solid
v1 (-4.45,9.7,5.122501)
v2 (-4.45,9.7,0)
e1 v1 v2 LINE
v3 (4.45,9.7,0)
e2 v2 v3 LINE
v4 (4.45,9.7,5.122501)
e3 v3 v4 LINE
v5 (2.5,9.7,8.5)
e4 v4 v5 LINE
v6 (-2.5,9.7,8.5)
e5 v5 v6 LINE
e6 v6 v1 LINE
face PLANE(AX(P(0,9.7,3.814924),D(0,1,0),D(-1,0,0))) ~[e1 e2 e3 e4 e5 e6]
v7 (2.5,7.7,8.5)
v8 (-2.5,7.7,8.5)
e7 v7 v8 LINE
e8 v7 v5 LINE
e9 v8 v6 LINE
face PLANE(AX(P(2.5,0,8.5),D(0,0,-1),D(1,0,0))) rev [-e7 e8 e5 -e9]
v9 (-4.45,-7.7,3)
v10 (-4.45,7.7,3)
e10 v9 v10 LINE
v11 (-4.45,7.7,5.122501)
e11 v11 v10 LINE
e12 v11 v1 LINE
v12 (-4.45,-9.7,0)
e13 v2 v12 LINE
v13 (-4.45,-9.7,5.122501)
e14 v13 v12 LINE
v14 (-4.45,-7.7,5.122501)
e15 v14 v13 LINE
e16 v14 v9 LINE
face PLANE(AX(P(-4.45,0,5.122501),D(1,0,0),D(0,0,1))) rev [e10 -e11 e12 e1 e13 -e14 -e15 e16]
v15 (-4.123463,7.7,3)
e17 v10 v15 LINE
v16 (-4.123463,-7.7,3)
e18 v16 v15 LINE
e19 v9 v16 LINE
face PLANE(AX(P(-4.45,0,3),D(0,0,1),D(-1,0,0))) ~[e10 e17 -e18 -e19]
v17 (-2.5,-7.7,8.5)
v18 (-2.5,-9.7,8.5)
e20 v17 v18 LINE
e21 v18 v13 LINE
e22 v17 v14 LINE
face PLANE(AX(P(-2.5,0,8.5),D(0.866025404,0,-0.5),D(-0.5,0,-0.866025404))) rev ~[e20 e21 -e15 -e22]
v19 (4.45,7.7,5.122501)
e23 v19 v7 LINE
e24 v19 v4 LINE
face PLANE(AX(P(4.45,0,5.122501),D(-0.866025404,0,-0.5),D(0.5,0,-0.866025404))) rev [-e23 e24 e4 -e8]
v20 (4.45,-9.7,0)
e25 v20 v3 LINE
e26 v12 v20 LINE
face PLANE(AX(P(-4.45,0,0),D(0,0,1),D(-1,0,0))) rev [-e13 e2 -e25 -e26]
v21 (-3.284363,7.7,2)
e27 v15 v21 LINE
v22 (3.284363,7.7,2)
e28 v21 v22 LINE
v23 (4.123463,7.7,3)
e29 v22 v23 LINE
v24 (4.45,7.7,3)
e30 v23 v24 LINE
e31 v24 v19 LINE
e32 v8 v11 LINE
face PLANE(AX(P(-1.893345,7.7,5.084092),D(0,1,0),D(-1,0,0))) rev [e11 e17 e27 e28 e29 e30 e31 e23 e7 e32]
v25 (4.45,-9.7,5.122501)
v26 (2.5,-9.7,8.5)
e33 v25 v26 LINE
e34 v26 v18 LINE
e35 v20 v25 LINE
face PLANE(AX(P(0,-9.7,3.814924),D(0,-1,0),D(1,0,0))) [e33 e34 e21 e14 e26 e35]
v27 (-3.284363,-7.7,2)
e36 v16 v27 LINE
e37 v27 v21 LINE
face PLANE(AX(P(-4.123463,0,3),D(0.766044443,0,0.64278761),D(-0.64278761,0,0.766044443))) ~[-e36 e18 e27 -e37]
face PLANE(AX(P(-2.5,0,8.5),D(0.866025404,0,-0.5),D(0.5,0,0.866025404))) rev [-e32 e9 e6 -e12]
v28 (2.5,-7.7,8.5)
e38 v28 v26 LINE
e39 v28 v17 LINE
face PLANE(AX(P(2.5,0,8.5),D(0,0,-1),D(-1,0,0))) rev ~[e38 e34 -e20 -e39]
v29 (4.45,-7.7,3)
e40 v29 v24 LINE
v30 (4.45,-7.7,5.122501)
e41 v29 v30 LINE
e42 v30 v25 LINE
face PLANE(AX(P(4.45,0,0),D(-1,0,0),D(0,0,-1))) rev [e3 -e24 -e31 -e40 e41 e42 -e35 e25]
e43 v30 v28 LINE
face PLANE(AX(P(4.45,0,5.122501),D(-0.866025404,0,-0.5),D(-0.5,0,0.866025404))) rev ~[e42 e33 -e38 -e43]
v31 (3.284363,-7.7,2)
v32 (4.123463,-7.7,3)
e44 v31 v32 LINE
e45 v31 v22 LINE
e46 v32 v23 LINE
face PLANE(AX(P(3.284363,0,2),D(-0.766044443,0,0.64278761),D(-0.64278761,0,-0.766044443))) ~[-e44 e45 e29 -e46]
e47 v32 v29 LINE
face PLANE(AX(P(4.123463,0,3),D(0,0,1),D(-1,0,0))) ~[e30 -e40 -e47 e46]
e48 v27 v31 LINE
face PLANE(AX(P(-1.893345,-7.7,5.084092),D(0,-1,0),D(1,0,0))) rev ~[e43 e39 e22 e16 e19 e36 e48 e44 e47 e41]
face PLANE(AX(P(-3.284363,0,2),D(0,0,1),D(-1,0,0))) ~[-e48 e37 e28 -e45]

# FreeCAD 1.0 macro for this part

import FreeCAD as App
import Part
import Sketcher
Q = App.Units.Quantity

doc = App.newDocument("Part")
params = doc.addObject("Spreadsheet::Sheet", "Params")
for row, (alias, value) in enumerate([
    ("sketch1_width", "5 mm"),
    ("sketch1_width2", "8.9 mm"),
    ("pad1_length", "9.7 mm"),
    ("sketch2_width", "5 mm"),
    ("sketch2_length", "3.9 mm"),
    ("pocket1_length", "7.7 mm"),
], start=1):
    params.set(f"A{row}", alias)
    params.set(f"B{row}", "=" + value)
    params.setAlias(f"B{row}", alias)

body = doc.addObject("PartDesign::Body", "Body")

# Sketch on XZ plane
sketch1 = body.newObject("Sketcher::SketchObject", "Sketch")
sketch1.AttachmentSupport = (doc.getObject("XZ_Plane"), [""])
sketch1.MapMode = "FlatFace"
sketch1.addGeometry([
    Part.LineSegment(App.Vector(2.5, 8.5, 0), App.Vector(-2.5, 8.5, 0)),  # 0
    Part.LineSegment(App.Vector(-2.5, 8.5, 0), App.Vector(-4.5, 5.1, 0)),  # 1
    Part.LineSegment(App.Vector(-4.5, 5.1, 0), App.Vector(-4.5, 0, 0)),  # 2
    Part.LineSegment(App.Vector(-4.5, 0, 0), App.Vector(4.5, 0, 0)),  # 3
    Part.LineSegment(App.Vector(4.5, 0, 0), App.Vector(4.5, 5.1, 0)),  # 4
    Part.LineSegment(App.Vector(4.5, 5.1, 0), App.Vector(2.5, 8.5, 0)),  # 5
], False)
sketch1.addConstraint([
    Sketcher.Constraint("Coincident", 0, 2, 1, 1),
    Sketcher.Constraint("Coincident", 1, 2, 2, 1),
    Sketcher.Constraint("Coincident", 2, 2, 3, 1),
    Sketcher.Constraint("Coincident", 3, 2, 4, 1),
    Sketcher.Constraint("Coincident", 4, 2, 5, 1),
    Sketcher.Constraint("Coincident", 5, 2, 0, 1),
    Sketcher.Constraint("Horizontal", 0),
    Sketcher.Constraint("Vertical", 2),
    Sketcher.Constraint("Horizontal", 3),
    Sketcher.Constraint("Vertical", 4),
    Sketcher.Constraint("Symmetric", 2, 2, 3, 2, -1, 1),
    Sketcher.Constraint("Horizontal", 1, 2, 4, 2),
    Sketcher.Constraint("Equal", 1, 5),
    Sketcher.Constraint("DistanceX", 0, 2, 0, 1, Q("5 mm")),
    Sketcher.Constraint("Angle", 1, Q("-120 deg")),
    Sketcher.Constraint("DistanceX", 3, 1, 3, 2, Q("8.9 mm")),
    Sketcher.Constraint("DistanceY", -1, 1, 0, 2, Q("8.5 mm")),
])
sketch1.setExpression("Constraints[13]", "Params.sketch1_width")
sketch1.setExpression("Constraints[15]", "Params.sketch1_width2")
pad1 = body.newObject("PartDesign::Pad", "Pad")
pad1.Profile = sketch1
pad1.setExpression("Length", "Params.pad1_length")

# Sketch on XZ plane
sketch2 = body.newObject("Sketcher::SketchObject", "Sketch001")
sketch2.AttachmentSupport = (doc.getObject("XZ_Plane"), [""])
sketch2.MapMode = "FlatFace"
sketch2.addGeometry([
    Part.LineSegment(App.Vector(-4.45, 5.12, 0), App.Vector(-4.45, 3, 0)),  # 0
    Part.LineSegment(App.Vector(-4.45, 3, 0), App.Vector(-4.12, 3, 0)),  # 1
    Part.LineSegment(App.Vector(-4.12, 3, 0), App.Vector(-3.28, 2, 0)),  # 2
    Part.LineSegment(App.Vector(-3.28, 2, 0), App.Vector(3.28, 2, 0)),  # 3
    Part.LineSegment(App.Vector(3.28, 2, 0), App.Vector(4.12, 3, 0)),  # 4
    Part.LineSegment(App.Vector(4.12, 3, 0), App.Vector(4.45, 3, 0)),  # 5
    Part.LineSegment(App.Vector(4.45, 3, 0), App.Vector(4.45, 5.12, 0)),  # 6
    Part.LineSegment(App.Vector(4.45, 5.12, 0), App.Vector(2.5, 8.5, 0)),  # 7
    Part.LineSegment(App.Vector(2.5, 8.5, 0), App.Vector(-2.5, 8.5, 0)),  # 8
    Part.LineSegment(App.Vector(-2.5, 8.5, 0), App.Vector(-4.45, 5.12, 0)),  # 9
], False)
sketch2.addConstraint([
    Sketcher.Constraint("Coincident", 0, 2, 1, 1),
    Sketcher.Constraint("Coincident", 1, 2, 2, 1),
    Sketcher.Constraint("Coincident", 2, 2, 3, 1),
    Sketcher.Constraint("Coincident", 3, 2, 4, 1),
    Sketcher.Constraint("Coincident", 4, 2, 5, 1),
    Sketcher.Constraint("Coincident", 5, 2, 6, 1),
    Sketcher.Constraint("Coincident", 6, 2, 7, 1),
    Sketcher.Constraint("Coincident", 7, 2, 8, 1),
    Sketcher.Constraint("Coincident", 8, 2, 9, 1),
    Sketcher.Constraint("Coincident", 9, 2, 0, 1),
    Sketcher.Constraint("Vertical", 0),
    Sketcher.Constraint("Horizontal", 1),
    Sketcher.Constraint("Horizontal", 3),
    Sketcher.Constraint("Horizontal", 5),
    Sketcher.Constraint("Vertical", 6),
    Sketcher.Constraint("Horizontal", 8),
    Sketcher.Constraint("Symmetric", 1, 2, 4, 2, -2),
    Sketcher.Constraint("Symmetric", 6, 2, 9, 2, -2),
    Sketcher.Constraint("Equal", 2, 4),
    Sketcher.Constraint("Equal", 7, 9),
    Sketcher.Constraint("DistanceX", 8, 2, 8, 1, Q("5 mm")),
    Sketcher.Constraint("Angle", 2, Q("-50 deg")),
    Sketcher.Constraint("Angle", 7, Q("120 deg")),
    Sketcher.Constraint("DistanceY", -1, 1, 0, 2, Q("3 mm")),
    Sketcher.Constraint("DistanceY", -1, 1, 2, 2, Q("2 mm")),
    Sketcher.Constraint("Distance", 7, Q("3.9 mm")),
    Sketcher.Constraint("DistanceY", -1, 1, 7, 2, Q("8.5 mm")),
    Sketcher.Constraint("DistanceX", 1, 1, 1, 2, Q("0.326537 mm")),
])
sketch2.setExpression("Constraints[20]", "Params.sketch2_width")
sketch2.setExpression("Constraints[25]", "Params.sketch2_length")
pocket1 = body.newObject("PartDesign::Pocket", "Pocket")
pocket1.Profile = sketch2
pocket1.setExpression("Length", "Params.pocket1_length")
pocket1.Reversed = True
body2 = doc.addObject("PartDesign::Body", "Body001")
doc.recompute()

body2.BaseFeature = body
doc.recompute()

mirroring = doc.addObject("Part::Mirroring", "Mirroring")
mirroring.Source = body
mirroring.Base = App.Vector(0, 0, 0)
mirroring.Normal = App.Vector(0, -1, 0)
body3 = doc.addObject("PartDesign::Body", "Body002")
body3.BaseFeature = mirroring
boolean = body2.newObject("PartDesign::Boolean", "Boolean")
boolean.Type = "Fuse"
boolean.addObjects([body3])
doc.recompute()
mirroring.Visibility = False

doc.recompute()
